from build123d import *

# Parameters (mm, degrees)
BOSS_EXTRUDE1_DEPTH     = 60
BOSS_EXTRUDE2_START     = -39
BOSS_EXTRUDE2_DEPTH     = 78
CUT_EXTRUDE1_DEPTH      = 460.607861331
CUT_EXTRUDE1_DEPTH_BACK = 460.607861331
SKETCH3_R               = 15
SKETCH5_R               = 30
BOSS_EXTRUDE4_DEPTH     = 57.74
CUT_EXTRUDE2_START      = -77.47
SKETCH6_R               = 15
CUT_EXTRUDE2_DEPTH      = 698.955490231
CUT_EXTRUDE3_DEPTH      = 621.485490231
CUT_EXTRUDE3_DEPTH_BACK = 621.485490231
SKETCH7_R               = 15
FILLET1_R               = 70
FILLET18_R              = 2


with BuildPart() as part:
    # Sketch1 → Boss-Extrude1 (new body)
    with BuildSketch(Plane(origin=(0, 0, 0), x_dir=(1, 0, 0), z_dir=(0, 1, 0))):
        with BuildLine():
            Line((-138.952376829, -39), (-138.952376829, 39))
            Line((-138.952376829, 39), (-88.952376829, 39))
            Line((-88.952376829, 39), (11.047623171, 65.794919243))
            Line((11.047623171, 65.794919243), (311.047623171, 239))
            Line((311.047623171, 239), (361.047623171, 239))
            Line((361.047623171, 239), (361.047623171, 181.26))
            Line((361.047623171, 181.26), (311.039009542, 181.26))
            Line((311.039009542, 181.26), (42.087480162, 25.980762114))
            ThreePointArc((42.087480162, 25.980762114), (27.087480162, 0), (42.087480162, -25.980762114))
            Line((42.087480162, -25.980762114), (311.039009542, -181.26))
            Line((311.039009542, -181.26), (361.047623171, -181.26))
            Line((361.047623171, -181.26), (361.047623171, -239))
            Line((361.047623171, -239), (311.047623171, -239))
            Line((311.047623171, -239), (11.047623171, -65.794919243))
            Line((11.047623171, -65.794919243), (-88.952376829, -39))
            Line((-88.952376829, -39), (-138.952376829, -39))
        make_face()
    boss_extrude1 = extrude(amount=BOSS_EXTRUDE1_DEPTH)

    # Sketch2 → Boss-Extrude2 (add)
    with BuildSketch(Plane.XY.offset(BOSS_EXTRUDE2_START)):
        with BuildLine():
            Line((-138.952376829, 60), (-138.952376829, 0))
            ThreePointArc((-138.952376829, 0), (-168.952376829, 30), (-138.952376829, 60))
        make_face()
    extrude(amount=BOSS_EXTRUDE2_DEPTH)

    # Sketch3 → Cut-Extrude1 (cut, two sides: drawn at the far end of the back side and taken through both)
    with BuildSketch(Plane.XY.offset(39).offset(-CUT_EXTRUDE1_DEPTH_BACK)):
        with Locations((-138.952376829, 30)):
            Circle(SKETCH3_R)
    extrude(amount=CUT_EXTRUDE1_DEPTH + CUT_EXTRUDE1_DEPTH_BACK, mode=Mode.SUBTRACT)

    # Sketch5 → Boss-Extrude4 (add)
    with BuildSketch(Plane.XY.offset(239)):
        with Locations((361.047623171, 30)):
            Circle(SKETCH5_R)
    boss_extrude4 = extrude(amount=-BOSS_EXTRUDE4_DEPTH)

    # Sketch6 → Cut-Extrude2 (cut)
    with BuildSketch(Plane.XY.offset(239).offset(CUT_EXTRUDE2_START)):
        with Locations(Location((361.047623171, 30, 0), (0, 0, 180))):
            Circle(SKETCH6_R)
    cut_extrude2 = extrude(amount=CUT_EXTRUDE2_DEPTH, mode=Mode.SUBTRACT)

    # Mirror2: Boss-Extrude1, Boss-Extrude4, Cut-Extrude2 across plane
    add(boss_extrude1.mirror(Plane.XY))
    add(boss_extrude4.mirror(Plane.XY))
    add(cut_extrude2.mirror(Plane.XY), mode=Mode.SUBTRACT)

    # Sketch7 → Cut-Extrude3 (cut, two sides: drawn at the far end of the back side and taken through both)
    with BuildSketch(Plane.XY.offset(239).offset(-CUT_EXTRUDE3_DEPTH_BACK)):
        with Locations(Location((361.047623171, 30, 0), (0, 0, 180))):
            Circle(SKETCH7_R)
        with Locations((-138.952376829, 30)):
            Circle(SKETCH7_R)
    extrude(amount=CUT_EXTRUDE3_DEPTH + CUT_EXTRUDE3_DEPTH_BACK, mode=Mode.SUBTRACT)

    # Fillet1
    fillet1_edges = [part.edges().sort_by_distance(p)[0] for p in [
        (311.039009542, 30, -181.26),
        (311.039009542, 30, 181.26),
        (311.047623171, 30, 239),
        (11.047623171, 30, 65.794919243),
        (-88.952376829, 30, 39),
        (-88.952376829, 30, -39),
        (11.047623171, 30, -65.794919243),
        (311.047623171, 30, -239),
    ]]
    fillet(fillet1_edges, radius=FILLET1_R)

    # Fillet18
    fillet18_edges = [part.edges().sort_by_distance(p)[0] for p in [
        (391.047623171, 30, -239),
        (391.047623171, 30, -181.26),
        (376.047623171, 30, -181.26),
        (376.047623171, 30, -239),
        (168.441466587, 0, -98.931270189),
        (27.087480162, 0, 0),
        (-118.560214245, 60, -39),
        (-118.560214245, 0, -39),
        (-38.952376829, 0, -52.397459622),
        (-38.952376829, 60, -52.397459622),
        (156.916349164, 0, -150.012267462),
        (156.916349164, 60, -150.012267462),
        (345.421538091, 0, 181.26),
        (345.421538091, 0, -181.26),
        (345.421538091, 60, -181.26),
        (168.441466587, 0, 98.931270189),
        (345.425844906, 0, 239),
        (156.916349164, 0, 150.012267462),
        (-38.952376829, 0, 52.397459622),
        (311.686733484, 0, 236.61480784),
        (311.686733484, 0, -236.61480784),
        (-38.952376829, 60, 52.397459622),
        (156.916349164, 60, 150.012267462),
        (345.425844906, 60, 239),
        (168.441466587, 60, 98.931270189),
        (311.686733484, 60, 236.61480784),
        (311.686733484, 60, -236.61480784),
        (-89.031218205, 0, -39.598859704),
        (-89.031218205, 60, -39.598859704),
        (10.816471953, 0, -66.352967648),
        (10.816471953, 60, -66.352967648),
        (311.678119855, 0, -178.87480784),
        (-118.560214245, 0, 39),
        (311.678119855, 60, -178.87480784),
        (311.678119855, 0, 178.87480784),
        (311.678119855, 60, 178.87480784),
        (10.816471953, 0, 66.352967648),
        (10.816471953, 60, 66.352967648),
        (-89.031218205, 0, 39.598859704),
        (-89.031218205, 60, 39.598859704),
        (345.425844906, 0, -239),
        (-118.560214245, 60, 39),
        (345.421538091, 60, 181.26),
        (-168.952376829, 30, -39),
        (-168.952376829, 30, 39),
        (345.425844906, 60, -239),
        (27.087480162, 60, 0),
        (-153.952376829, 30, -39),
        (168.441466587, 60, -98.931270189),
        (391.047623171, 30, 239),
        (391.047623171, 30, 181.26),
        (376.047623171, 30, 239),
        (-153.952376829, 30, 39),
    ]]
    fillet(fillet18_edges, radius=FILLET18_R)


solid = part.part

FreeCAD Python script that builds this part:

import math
import FreeCAD as App
import Part
import Sketcher

V = App.Vector
Q = App.Units.Quantity


def edges_at(feature, points):
    """Names of the edges that pass closest to the given points."""
    edges = feature.Shape.Edges
    near = lambda p: min(range(len(edges)), key=lambda i: edges[i].distToShape(Part.Vertex(*p))[0])
    return sorted({f"Edge{near(p) + 1}" for p in points})

doc = App.newDocument("Part")
body = doc.addObject("PartDesign::Body", "Body")

sketch1 = doc.addObject("Sketcher::SketchObject", "Sketch")
body.addObject(sketch1)
sketch1.AttachmentSupport = (doc.XZ_Plane, [""])
sketch1.MapMode = "FlatFace"
sketch1.addGeometry([
    Part.LineSegment(V(-139, -39, 0), V(-139, 39, 0)),
    Part.LineSegment(V(-139, 39, 0), V(-89, 39, 0)),
    Part.LineSegment(V(-89, 39, 0), V(11, 66, 0)),
    Part.LineSegment(V(11, 66, 0), V(311, 239, 0)),
    Part.LineSegment(V(311, 239, 0), V(361, 239, 0)),
    Part.LineSegment(V(361, 239, 0), V(361, 181, 0)),
    Part.LineSegment(V(361, 181, 0), V(311, 181, 0)),
    Part.LineSegment(V(311, 181, 0), V(42, 26, 0)),
    Part.ArcOfCircle(Part.Circle(V(57, 0, 0), V(0, 0, 1), 30), math.radians(120), math.radians(240)),
    Part.LineSegment(V(42, -26, 0), V(311, -181, 0)),
    Part.LineSegment(V(311, -181, 0), V(361, -181, 0)),
    Part.LineSegment(V(361, -181, 0), V(361, -239, 0)),
    Part.LineSegment(V(361, -239, 0), V(311, -239, 0)),
    Part.LineSegment(V(311, -239, 0), V(11, -66, 0)),
    Part.LineSegment(V(11, -66, 0), V(-89, -39, 0)),
    Part.LineSegment(V(-89, -39, 0), V(-139, -39, 0)),
], False)
sketch1.addConstraint([
    Sketcher.Constraint("Coincident", 0, 2, 1, 1),
    Sketcher.Constraint("Coincident", 1, 2, 2, 1),
    Sketcher.Constraint("Coincident", 2, 2, 3, 1),
    Sketcher.Constraint("Coincident", 3, 2, 4, 1),
    Sketcher.Constraint("Coincident", 4, 2, 5, 1),
    Sketcher.Constraint("Coincident", 5, 2, 6, 1),
    Sketcher.Constraint("Coincident", 6, 2, 7, 1),
    Sketcher.Constraint("Tangent", 7, 2, 8, 1),
    Sketcher.Constraint("Tangent", 8, 2, 9, 1),
    Sketcher.Constraint("Coincident", 9, 2, 10, 1),
    Sketcher.Constraint("Coincident", 10, 2, 11, 1),
    Sketcher.Constraint("Coincident", 11, 2, 12, 1),
    Sketcher.Constraint("Coincident", 12, 2, 13, 1),
    Sketcher.Constraint("Coincident", 13, 2, 14, 1),
    Sketcher.Constraint("Coincident", 14, 2, 15, 1),
    Sketcher.Constraint("Coincident", 15, 2, 0, 1),
    Sketcher.Constraint("Vertical", 0),
    Sketcher.Constraint("Horizontal", 1),
    Sketcher.Constraint("Horizontal", 4),
    Sketcher.Constraint("Vertical", 5),
    Sketcher.Constraint("Horizontal", 6),
    Sketcher.Constraint("Horizontal", 10),
    Sketcher.Constraint("Vertical", 11),
    Sketcher.Constraint("Horizontal", 12),
    Sketcher.Constraint("Horizontal", 15),
    Sketcher.Constraint("Symmetric", 7, 2, 8, 2, -1),
    Sketcher.Constraint("Symmetric", 5, 2, 10, 2, -1),
    Sketcher.Constraint("Symmetric", 3, 2, 12, 2, -1),
    Sketcher.Constraint("Symmetric", 2, 2, 13, 2, -1),
    Sketcher.Constraint("Symmetric", 1, 2, 14, 2, -1),
    Sketcher.Constraint("Parallel", 3, 7),
    Sketcher.Constraint("Equal", 1, 4),
    Sketcher.Constraint("Radius", 8, 30.0),
    Sketcher.Constraint("DistanceX", 1, 1, 1, 2, 50.0),
    Sketcher.Constraint("DistanceY", 0, 1, 0, 2, 78.0),
    Sketcher.Constraint("Angle", 2, Q("15 deg")),
    Sketcher.Constraint("Angle", 3, Q("30 deg")),
    Sketcher.Constraint("DistanceY", -1, 1, 3, 2, 239.0),
    Sketcher.Constraint("DistanceX", 1, 2, 2, 2, 100.0),
    Sketcher.Constraint("DistanceY", 5, 2, 5, 1, 57.74),
    Sketcher.Constraint("DistanceX", 6, 2, 6, 1, 50.008614),
    Sketcher.Constraint("DistanceX", -1, 1, 8, 3, 57.08748),
])
pad1 = doc.addObject("PartDesign::Pad", "Pad")
body.addObject(pad1)
pad1.Profile = sketch1
pad1.Length = 60
pad1.Reversed = True

sketch2 = doc.addObject("Sketcher::SketchObject", "Sketch001")
body.addObject(sketch2)
sketch2.AttachmentSupport = (doc.XY_Plane, [""])
sketch2.MapMode = "FlatFace"
sketch2.AttachmentOffset = App.Placement(V(0, 0, -39), App.Rotation())
sketch2.addGeometry([
    Part.LineSegment(V(-139, 0, 0), V(-139, 60, 0)),
    Part.ArcOfCircle(Part.Circle(V(-139, 30, 0), V(0, 0, 1), 30), math.radians(90), math.radians(270)),
], False)
sketch2.addConstraint([
    Sketcher.Constraint("Coincident", 0, 1, 1, 2),
    Sketcher.Constraint("Coincident", 1, 1, 0, 2),
    Sketcher.Constraint("Vertical", 0),
    Sketcher.Constraint("PointOnObject", 0, 1, -1),
    Sketcher.Constraint("Vertical", 1, 3, 0, 1),
    Sketcher.Constraint("Radius", 1, 30.0),
    Sketcher.Constraint("DistanceX", 1, 3, -1, 1, 138.952377),
])
pad2 = doc.addObject("PartDesign::Pad", "Pad001")
body.addObject(pad2)
pad2.Profile = sketch2
pad2.Length = 78

sketch3 = doc.addObject("Sketcher::SketchObject", "Sketch002")
body.addObject(sketch3)
sketch3.AttachmentSupport = (doc.XY_Plane, [""])
sketch3.MapMode = "FlatFace"
sketch3.AttachmentOffset = App.Placement(V(0, 0, 39), App.Rotation())
sketch3.addGeometry(Part.Circle(V(-139, 30, 0), V(0, 0, 1), 15), False)
sketch3.addConstraint([
    Sketcher.Constraint("Diameter", 0, 30.0),
    Sketcher.Constraint("DistanceY", -1, 1, 0, 3, 30.0),
    Sketcher.Constraint("DistanceX", 0, 3, -1, 1, 138.952377),
])
pocket1 = doc.addObject("PartDesign::Pocket", "Pocket")
body.addObject(pocket1)
pocket1.Profile = sketch3
pocket1.Type = "ThroughAll"
pocket1.Midplane = True

sketch4 = doc.addObject("Sketcher::SketchObject", "Sketch003")
body.addObject(sketch4)
sketch4.AttachmentSupport = (doc.XY_Plane, [""])
sketch4.MapMode = "FlatFace"
sketch4.AttachmentOffset = App.Placement(V(0, 0, 239), App.Rotation())
sketch4.addGeometry(Part.Circle(V(361, 30, 0), V(0, 0, 1), 30), False)
sketch4.addConstraint([
    Sketcher.Constraint("Diameter", 0, 60.0),
    Sketcher.Constraint("DistanceY", -1, 1, 0, 3, 30.0),
    Sketcher.Constraint("DistanceX", -1, 1, 0, 3, 361.047623),
])
pad3 = doc.addObject("PartDesign::Pad", "Pad002")
body.addObject(pad3)
pad3.Profile = sketch4
pad3.Length = 57.74
pad3.Reversed = True

sketch5 = doc.addObject("Sketcher::SketchObject", "Sketch004")
body.addObject(sketch5)
sketch5.AttachmentSupport = (doc.XY_Plane, [""])
sketch5.MapMode = "FlatFace"
sketch5.AttachmentOffset = App.Placement(V(0, 0, 161.53), App.Rotation())
sketch5.addGeometry(Part.Circle(V(361, 30, 0), V(0, 0, 1), 15), False)
sketch5.addConstraint([
    Sketcher.Constraint("Diameter", 0, 30.0),
    Sketcher.Constraint("DistanceY", -1, 1, 0, 3, 30.0),
    Sketcher.Constraint("DistanceX", -1, 1, 0, 3, 361.047623),
])
pocket2 = doc.addObject("PartDesign::Pocket", "Pocket001")
body.addObject(pocket2)
pocket2.Profile = sketch5
pocket2.Length = 698.95549
pocket2.Reversed = True
doc.recompute()

mirrored = doc.addObject("PartDesign::Mirrored", "Mirrored")
body.addObject(mirrored)
mirrored.Originals = [pad1, pad3, pocket2]
mirrored.MirrorPlane = (doc.XY_Plane, [""])
body.Tip = mirrored

sketch6 = doc.addObject("Sketcher::SketchObject", "Sketch005")
body.addObject(sketch6)
sketch6.AttachmentSupport = (doc.XY_Plane, [""])
sketch6.MapMode = "FlatFace"
sketch6.AttachmentOffset = App.Placement(V(0, 0, 239), App.Rotation())
sketch6.addGeometry([
    Part.Circle(V(361, 30, 0), V(0, 0, 1), 15),
    Part.Circle(V(-139, 30, 0), V(0, 0, 1), 15),
], False)
sketch6.addConstraint([
    Sketcher.Constraint("Equal", 0, 1),
    Sketcher.Constraint("Horizontal", 0, 3, 1, 3),
    Sketcher.Constraint("Diameter", 0, 30.0),
    Sketcher.Constraint("DistanceY", -1, 1, 0, 3, 30.0),
    Sketcher.Constraint("DistanceX", 1, 3, 0, 3, 500.0),
    Sketcher.Constraint("DistanceX", -1, 1, 0, 3, 361.047623),
])
pocket3 = doc.addObject("PartDesign::Pocket", "Pocket002")
body.addObject(pocket3)
pocket3.Profile = sketch6
pocket3.Type = "ThroughAll"
pocket3.Midplane = True
doc.recompute()

fillet = doc.addObject("PartDesign::Fillet", "Fillet")
body.addObject(fillet)
fillet.Base = (pocket3, edges_at(pocket3, [
    (311.039, 30, -181.26),
    (311.039, 30, 181.26),
    (311.048, 30, 239),
    (11.048, 30, 65.795),
    (-88.952, 30, 39),
    (-88.952, 30, -39),
    (11.048, 30, -65.795),
    (311.048, 30, -239),
]))
fillet.Radius = 70
doc.recompute()

fillet2 = doc.addObject("PartDesign::Fillet", "Fillet001")
body.addObject(fillet2)
fillet2.Base = (fillet, edges_at(fillet, [
    (391.048, 30, -239),
    (391.048, 30, -181.26),
    (376.048, 30, -181.26),
    (376.048, 30, -239),
    (168.441, 0, -98.931),
    (27.087, 0, 0),
    (-118.56, 60, -39),
    (-118.56, 0, -39),
    (-38.952, 0, -52.397),
    (-38.952, 60, -52.397),
    (156.916, 0, -150.012),
    (156.916, 60, -150.012),
    (345.422, 0, 181.26),
    (345.422, 0, -181.26),
    (345.422, 60, -181.26),
    (168.441, 0, 98.931),
    (345.426, 0, 239),
    (156.916, 0, 150.012),
    (-38.952, 0, 52.397),
    (311.687, 0, 236.615),
    (311.687, 0, -236.615),
    (-38.952, 60, 52.397),
    (156.916, 60, 150.012),
    (345.426, 60, 239),
    (168.441, 60, 98.931),
    (311.687, 60, 236.615),
    (311.687, 60, -236.615),
    (-89.031, 0, -39.599),
    (-89.031, 60, -39.599),
    (10.816, 0, -66.353),
    (10.816, 60, -66.353),
    (311.678, 0, -178.875),
    (-118.56, 0, 39),
    (311.678, 60, -178.875),
    (311.678, 0, 178.875),
    (311.678, 60, 178.875),
    (10.816, 0, 66.353),
    (10.816, 60, 66.353),
    (-89.031, 0, 39.599),
    (-89.031, 60, 39.599),
    (345.426, 0, -239),
    (-118.56, 60, 39),
    (345.422, 60, 181.26),
    (-168.952, 30, -39),
    (-168.952, 30, 39),
    (345.426, 60, -239),
    (27.087, 60, 0),
    (-153.952, 30, -39),
    (168.441, 60, -98.931),
    (391.048, 30, 239),
    (391.048, 30, 181.26),
    (376.048, 30, 239),
    (-153.952, 30, 39),
]))
fillet2.Radius = 2

doc.recompute()
